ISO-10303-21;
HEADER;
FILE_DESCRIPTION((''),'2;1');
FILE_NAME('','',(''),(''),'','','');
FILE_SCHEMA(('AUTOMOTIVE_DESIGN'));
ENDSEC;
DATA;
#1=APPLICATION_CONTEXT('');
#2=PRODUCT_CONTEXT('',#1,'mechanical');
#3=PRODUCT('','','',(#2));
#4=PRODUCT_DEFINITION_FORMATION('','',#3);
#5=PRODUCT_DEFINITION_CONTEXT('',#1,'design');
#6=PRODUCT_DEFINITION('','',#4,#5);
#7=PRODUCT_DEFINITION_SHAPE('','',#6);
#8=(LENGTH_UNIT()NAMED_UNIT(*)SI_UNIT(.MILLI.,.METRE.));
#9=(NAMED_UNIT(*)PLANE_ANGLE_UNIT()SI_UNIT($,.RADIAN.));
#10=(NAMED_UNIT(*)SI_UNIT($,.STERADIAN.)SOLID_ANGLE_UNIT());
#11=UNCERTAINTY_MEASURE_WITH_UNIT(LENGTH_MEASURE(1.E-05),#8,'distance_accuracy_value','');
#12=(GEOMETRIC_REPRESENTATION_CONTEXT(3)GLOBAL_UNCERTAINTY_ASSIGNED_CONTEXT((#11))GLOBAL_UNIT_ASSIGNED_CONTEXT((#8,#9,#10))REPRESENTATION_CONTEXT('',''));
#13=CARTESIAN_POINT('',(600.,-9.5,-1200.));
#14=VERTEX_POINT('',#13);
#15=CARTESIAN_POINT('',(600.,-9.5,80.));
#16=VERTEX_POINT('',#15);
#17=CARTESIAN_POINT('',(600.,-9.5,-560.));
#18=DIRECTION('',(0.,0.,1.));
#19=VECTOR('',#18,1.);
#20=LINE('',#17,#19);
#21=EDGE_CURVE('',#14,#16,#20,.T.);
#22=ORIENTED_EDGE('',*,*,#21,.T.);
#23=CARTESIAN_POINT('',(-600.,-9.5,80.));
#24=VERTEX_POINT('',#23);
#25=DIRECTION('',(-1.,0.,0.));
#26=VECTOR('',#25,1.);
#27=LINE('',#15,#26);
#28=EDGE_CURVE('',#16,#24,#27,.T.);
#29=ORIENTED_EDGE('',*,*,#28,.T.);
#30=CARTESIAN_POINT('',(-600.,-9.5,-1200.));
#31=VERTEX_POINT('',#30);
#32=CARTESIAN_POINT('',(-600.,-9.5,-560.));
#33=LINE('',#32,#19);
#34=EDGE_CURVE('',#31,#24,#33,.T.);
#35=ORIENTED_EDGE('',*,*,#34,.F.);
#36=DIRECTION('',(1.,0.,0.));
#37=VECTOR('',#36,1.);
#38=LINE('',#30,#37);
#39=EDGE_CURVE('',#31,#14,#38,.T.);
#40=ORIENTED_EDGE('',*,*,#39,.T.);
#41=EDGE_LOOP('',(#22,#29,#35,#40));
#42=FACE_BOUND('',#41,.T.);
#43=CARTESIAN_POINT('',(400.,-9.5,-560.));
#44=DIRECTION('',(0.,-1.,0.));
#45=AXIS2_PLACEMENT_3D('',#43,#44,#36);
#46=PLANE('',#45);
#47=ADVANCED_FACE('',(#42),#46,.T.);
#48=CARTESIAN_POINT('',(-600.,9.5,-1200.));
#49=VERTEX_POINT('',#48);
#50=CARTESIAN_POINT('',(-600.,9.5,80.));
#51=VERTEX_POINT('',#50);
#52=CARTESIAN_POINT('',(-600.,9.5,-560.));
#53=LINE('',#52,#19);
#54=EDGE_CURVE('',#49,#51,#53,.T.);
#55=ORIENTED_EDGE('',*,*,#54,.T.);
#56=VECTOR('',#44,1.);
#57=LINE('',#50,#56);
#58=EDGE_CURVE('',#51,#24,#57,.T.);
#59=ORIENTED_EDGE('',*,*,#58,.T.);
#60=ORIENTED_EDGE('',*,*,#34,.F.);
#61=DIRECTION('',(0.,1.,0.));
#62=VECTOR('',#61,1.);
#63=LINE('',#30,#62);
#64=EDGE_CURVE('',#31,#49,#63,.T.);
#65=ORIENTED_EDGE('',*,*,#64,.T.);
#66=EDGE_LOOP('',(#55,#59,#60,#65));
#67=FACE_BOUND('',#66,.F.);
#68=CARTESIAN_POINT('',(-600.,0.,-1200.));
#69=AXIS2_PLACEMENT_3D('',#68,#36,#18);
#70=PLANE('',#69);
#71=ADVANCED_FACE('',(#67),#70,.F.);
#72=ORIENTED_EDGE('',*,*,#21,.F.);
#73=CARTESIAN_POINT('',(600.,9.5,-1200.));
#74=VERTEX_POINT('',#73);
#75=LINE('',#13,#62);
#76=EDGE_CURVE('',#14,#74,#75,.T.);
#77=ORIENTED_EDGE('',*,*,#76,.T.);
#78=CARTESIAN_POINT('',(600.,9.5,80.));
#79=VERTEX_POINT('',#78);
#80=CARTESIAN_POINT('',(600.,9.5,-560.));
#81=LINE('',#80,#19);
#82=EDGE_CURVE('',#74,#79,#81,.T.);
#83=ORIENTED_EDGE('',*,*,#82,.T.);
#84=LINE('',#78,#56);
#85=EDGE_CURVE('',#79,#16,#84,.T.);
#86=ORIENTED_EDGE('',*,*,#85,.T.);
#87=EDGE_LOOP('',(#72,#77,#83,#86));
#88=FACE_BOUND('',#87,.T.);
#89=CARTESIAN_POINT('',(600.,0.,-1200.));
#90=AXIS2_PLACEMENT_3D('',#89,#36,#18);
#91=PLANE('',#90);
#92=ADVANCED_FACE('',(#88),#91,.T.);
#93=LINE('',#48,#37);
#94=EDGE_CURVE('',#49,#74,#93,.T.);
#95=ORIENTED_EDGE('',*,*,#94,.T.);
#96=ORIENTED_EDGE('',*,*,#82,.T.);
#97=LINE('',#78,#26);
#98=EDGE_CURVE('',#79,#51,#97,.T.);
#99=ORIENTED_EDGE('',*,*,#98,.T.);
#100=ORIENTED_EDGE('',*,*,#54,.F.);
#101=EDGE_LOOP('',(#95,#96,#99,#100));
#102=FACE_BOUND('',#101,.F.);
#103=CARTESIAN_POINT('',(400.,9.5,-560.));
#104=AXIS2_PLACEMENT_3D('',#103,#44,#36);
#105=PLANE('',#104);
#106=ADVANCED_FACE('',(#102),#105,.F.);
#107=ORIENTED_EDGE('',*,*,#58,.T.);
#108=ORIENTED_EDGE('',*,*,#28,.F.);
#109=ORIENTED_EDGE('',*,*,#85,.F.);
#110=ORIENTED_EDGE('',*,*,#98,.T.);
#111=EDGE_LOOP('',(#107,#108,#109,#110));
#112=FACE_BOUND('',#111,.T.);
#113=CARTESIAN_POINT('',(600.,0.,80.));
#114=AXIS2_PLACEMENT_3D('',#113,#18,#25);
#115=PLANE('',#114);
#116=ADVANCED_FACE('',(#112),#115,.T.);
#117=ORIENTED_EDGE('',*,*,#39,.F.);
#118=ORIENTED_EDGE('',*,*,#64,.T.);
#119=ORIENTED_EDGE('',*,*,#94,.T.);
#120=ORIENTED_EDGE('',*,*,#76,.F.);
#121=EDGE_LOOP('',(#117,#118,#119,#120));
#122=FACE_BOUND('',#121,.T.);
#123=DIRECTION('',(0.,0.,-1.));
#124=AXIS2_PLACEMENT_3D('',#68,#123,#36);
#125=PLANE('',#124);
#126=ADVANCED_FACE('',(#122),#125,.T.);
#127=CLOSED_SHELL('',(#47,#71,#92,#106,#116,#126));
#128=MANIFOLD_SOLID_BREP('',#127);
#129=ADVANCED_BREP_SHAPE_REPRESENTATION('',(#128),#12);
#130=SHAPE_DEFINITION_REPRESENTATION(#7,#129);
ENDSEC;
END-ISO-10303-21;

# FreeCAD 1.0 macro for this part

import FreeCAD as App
import Part
import Sketcher

doc = App.newDocument("Part")
body = doc.addObject("PartDesign::Body", "Body")

# Sketch on XZ plane
sketch1 = doc.addObject("Sketcher::SketchObject", "Sketch")
body.addObject(sketch1)
sketch1.AttachmentSupport = (doc.XZ_Plane, [""])
sketch1.MapMode = "FlatFace"
sketch1.addGeometry([
    Part.LineSegment(App.Vector(600, -1200, 0), App.Vector(600, 80, 0)),
    Part.LineSegment(App.Vector(600, 80, 0), App.Vector(-600, 80, 0)),
    Part.LineSegment(App.Vector(-600, 80, 0), App.Vector(-600, -1200, 0)),
    Part.LineSegment(App.Vector(-600, -1200, 0), App.Vector(600, -1200, 0)),
], False)
sketch1.addConstraint([
    Sketcher.Constraint("Coincident", 0, 2, 1, 1),
    Sketcher.Constraint("Coincident", 1, 2, 2, 1),
    Sketcher.Constraint("Coincident", 2, 2, 3, 1),
    Sketcher.Constraint("Coincident", 3, 2, 0, 1),
    Sketcher.Constraint("Vertical", 0),
    Sketcher.Constraint("Horizontal", 1),
    Sketcher.Constraint("Vertical", 2),
    Sketcher.Constraint("Horizontal", 3),
    Sketcher.Constraint("DistanceX", 1, 2, 1, 1, 1200.0),
    Sketcher.Constraint("DistanceY", 0, 1, 0, 2, 1280.0),
    Sketcher.Constraint("DistanceX", -1, 1, 0, 2, 600.0),
    Sketcher.Constraint("DistanceY", -1, 1, 0, 2, 80.0),
])
pad1 = doc.addObject("PartDesign::Pad", "Pad")
body.addObject(pad1)
pad1.Profile = sketch1
pad1.Length = 19
pad1.Midplane = True

doc.recompute()
